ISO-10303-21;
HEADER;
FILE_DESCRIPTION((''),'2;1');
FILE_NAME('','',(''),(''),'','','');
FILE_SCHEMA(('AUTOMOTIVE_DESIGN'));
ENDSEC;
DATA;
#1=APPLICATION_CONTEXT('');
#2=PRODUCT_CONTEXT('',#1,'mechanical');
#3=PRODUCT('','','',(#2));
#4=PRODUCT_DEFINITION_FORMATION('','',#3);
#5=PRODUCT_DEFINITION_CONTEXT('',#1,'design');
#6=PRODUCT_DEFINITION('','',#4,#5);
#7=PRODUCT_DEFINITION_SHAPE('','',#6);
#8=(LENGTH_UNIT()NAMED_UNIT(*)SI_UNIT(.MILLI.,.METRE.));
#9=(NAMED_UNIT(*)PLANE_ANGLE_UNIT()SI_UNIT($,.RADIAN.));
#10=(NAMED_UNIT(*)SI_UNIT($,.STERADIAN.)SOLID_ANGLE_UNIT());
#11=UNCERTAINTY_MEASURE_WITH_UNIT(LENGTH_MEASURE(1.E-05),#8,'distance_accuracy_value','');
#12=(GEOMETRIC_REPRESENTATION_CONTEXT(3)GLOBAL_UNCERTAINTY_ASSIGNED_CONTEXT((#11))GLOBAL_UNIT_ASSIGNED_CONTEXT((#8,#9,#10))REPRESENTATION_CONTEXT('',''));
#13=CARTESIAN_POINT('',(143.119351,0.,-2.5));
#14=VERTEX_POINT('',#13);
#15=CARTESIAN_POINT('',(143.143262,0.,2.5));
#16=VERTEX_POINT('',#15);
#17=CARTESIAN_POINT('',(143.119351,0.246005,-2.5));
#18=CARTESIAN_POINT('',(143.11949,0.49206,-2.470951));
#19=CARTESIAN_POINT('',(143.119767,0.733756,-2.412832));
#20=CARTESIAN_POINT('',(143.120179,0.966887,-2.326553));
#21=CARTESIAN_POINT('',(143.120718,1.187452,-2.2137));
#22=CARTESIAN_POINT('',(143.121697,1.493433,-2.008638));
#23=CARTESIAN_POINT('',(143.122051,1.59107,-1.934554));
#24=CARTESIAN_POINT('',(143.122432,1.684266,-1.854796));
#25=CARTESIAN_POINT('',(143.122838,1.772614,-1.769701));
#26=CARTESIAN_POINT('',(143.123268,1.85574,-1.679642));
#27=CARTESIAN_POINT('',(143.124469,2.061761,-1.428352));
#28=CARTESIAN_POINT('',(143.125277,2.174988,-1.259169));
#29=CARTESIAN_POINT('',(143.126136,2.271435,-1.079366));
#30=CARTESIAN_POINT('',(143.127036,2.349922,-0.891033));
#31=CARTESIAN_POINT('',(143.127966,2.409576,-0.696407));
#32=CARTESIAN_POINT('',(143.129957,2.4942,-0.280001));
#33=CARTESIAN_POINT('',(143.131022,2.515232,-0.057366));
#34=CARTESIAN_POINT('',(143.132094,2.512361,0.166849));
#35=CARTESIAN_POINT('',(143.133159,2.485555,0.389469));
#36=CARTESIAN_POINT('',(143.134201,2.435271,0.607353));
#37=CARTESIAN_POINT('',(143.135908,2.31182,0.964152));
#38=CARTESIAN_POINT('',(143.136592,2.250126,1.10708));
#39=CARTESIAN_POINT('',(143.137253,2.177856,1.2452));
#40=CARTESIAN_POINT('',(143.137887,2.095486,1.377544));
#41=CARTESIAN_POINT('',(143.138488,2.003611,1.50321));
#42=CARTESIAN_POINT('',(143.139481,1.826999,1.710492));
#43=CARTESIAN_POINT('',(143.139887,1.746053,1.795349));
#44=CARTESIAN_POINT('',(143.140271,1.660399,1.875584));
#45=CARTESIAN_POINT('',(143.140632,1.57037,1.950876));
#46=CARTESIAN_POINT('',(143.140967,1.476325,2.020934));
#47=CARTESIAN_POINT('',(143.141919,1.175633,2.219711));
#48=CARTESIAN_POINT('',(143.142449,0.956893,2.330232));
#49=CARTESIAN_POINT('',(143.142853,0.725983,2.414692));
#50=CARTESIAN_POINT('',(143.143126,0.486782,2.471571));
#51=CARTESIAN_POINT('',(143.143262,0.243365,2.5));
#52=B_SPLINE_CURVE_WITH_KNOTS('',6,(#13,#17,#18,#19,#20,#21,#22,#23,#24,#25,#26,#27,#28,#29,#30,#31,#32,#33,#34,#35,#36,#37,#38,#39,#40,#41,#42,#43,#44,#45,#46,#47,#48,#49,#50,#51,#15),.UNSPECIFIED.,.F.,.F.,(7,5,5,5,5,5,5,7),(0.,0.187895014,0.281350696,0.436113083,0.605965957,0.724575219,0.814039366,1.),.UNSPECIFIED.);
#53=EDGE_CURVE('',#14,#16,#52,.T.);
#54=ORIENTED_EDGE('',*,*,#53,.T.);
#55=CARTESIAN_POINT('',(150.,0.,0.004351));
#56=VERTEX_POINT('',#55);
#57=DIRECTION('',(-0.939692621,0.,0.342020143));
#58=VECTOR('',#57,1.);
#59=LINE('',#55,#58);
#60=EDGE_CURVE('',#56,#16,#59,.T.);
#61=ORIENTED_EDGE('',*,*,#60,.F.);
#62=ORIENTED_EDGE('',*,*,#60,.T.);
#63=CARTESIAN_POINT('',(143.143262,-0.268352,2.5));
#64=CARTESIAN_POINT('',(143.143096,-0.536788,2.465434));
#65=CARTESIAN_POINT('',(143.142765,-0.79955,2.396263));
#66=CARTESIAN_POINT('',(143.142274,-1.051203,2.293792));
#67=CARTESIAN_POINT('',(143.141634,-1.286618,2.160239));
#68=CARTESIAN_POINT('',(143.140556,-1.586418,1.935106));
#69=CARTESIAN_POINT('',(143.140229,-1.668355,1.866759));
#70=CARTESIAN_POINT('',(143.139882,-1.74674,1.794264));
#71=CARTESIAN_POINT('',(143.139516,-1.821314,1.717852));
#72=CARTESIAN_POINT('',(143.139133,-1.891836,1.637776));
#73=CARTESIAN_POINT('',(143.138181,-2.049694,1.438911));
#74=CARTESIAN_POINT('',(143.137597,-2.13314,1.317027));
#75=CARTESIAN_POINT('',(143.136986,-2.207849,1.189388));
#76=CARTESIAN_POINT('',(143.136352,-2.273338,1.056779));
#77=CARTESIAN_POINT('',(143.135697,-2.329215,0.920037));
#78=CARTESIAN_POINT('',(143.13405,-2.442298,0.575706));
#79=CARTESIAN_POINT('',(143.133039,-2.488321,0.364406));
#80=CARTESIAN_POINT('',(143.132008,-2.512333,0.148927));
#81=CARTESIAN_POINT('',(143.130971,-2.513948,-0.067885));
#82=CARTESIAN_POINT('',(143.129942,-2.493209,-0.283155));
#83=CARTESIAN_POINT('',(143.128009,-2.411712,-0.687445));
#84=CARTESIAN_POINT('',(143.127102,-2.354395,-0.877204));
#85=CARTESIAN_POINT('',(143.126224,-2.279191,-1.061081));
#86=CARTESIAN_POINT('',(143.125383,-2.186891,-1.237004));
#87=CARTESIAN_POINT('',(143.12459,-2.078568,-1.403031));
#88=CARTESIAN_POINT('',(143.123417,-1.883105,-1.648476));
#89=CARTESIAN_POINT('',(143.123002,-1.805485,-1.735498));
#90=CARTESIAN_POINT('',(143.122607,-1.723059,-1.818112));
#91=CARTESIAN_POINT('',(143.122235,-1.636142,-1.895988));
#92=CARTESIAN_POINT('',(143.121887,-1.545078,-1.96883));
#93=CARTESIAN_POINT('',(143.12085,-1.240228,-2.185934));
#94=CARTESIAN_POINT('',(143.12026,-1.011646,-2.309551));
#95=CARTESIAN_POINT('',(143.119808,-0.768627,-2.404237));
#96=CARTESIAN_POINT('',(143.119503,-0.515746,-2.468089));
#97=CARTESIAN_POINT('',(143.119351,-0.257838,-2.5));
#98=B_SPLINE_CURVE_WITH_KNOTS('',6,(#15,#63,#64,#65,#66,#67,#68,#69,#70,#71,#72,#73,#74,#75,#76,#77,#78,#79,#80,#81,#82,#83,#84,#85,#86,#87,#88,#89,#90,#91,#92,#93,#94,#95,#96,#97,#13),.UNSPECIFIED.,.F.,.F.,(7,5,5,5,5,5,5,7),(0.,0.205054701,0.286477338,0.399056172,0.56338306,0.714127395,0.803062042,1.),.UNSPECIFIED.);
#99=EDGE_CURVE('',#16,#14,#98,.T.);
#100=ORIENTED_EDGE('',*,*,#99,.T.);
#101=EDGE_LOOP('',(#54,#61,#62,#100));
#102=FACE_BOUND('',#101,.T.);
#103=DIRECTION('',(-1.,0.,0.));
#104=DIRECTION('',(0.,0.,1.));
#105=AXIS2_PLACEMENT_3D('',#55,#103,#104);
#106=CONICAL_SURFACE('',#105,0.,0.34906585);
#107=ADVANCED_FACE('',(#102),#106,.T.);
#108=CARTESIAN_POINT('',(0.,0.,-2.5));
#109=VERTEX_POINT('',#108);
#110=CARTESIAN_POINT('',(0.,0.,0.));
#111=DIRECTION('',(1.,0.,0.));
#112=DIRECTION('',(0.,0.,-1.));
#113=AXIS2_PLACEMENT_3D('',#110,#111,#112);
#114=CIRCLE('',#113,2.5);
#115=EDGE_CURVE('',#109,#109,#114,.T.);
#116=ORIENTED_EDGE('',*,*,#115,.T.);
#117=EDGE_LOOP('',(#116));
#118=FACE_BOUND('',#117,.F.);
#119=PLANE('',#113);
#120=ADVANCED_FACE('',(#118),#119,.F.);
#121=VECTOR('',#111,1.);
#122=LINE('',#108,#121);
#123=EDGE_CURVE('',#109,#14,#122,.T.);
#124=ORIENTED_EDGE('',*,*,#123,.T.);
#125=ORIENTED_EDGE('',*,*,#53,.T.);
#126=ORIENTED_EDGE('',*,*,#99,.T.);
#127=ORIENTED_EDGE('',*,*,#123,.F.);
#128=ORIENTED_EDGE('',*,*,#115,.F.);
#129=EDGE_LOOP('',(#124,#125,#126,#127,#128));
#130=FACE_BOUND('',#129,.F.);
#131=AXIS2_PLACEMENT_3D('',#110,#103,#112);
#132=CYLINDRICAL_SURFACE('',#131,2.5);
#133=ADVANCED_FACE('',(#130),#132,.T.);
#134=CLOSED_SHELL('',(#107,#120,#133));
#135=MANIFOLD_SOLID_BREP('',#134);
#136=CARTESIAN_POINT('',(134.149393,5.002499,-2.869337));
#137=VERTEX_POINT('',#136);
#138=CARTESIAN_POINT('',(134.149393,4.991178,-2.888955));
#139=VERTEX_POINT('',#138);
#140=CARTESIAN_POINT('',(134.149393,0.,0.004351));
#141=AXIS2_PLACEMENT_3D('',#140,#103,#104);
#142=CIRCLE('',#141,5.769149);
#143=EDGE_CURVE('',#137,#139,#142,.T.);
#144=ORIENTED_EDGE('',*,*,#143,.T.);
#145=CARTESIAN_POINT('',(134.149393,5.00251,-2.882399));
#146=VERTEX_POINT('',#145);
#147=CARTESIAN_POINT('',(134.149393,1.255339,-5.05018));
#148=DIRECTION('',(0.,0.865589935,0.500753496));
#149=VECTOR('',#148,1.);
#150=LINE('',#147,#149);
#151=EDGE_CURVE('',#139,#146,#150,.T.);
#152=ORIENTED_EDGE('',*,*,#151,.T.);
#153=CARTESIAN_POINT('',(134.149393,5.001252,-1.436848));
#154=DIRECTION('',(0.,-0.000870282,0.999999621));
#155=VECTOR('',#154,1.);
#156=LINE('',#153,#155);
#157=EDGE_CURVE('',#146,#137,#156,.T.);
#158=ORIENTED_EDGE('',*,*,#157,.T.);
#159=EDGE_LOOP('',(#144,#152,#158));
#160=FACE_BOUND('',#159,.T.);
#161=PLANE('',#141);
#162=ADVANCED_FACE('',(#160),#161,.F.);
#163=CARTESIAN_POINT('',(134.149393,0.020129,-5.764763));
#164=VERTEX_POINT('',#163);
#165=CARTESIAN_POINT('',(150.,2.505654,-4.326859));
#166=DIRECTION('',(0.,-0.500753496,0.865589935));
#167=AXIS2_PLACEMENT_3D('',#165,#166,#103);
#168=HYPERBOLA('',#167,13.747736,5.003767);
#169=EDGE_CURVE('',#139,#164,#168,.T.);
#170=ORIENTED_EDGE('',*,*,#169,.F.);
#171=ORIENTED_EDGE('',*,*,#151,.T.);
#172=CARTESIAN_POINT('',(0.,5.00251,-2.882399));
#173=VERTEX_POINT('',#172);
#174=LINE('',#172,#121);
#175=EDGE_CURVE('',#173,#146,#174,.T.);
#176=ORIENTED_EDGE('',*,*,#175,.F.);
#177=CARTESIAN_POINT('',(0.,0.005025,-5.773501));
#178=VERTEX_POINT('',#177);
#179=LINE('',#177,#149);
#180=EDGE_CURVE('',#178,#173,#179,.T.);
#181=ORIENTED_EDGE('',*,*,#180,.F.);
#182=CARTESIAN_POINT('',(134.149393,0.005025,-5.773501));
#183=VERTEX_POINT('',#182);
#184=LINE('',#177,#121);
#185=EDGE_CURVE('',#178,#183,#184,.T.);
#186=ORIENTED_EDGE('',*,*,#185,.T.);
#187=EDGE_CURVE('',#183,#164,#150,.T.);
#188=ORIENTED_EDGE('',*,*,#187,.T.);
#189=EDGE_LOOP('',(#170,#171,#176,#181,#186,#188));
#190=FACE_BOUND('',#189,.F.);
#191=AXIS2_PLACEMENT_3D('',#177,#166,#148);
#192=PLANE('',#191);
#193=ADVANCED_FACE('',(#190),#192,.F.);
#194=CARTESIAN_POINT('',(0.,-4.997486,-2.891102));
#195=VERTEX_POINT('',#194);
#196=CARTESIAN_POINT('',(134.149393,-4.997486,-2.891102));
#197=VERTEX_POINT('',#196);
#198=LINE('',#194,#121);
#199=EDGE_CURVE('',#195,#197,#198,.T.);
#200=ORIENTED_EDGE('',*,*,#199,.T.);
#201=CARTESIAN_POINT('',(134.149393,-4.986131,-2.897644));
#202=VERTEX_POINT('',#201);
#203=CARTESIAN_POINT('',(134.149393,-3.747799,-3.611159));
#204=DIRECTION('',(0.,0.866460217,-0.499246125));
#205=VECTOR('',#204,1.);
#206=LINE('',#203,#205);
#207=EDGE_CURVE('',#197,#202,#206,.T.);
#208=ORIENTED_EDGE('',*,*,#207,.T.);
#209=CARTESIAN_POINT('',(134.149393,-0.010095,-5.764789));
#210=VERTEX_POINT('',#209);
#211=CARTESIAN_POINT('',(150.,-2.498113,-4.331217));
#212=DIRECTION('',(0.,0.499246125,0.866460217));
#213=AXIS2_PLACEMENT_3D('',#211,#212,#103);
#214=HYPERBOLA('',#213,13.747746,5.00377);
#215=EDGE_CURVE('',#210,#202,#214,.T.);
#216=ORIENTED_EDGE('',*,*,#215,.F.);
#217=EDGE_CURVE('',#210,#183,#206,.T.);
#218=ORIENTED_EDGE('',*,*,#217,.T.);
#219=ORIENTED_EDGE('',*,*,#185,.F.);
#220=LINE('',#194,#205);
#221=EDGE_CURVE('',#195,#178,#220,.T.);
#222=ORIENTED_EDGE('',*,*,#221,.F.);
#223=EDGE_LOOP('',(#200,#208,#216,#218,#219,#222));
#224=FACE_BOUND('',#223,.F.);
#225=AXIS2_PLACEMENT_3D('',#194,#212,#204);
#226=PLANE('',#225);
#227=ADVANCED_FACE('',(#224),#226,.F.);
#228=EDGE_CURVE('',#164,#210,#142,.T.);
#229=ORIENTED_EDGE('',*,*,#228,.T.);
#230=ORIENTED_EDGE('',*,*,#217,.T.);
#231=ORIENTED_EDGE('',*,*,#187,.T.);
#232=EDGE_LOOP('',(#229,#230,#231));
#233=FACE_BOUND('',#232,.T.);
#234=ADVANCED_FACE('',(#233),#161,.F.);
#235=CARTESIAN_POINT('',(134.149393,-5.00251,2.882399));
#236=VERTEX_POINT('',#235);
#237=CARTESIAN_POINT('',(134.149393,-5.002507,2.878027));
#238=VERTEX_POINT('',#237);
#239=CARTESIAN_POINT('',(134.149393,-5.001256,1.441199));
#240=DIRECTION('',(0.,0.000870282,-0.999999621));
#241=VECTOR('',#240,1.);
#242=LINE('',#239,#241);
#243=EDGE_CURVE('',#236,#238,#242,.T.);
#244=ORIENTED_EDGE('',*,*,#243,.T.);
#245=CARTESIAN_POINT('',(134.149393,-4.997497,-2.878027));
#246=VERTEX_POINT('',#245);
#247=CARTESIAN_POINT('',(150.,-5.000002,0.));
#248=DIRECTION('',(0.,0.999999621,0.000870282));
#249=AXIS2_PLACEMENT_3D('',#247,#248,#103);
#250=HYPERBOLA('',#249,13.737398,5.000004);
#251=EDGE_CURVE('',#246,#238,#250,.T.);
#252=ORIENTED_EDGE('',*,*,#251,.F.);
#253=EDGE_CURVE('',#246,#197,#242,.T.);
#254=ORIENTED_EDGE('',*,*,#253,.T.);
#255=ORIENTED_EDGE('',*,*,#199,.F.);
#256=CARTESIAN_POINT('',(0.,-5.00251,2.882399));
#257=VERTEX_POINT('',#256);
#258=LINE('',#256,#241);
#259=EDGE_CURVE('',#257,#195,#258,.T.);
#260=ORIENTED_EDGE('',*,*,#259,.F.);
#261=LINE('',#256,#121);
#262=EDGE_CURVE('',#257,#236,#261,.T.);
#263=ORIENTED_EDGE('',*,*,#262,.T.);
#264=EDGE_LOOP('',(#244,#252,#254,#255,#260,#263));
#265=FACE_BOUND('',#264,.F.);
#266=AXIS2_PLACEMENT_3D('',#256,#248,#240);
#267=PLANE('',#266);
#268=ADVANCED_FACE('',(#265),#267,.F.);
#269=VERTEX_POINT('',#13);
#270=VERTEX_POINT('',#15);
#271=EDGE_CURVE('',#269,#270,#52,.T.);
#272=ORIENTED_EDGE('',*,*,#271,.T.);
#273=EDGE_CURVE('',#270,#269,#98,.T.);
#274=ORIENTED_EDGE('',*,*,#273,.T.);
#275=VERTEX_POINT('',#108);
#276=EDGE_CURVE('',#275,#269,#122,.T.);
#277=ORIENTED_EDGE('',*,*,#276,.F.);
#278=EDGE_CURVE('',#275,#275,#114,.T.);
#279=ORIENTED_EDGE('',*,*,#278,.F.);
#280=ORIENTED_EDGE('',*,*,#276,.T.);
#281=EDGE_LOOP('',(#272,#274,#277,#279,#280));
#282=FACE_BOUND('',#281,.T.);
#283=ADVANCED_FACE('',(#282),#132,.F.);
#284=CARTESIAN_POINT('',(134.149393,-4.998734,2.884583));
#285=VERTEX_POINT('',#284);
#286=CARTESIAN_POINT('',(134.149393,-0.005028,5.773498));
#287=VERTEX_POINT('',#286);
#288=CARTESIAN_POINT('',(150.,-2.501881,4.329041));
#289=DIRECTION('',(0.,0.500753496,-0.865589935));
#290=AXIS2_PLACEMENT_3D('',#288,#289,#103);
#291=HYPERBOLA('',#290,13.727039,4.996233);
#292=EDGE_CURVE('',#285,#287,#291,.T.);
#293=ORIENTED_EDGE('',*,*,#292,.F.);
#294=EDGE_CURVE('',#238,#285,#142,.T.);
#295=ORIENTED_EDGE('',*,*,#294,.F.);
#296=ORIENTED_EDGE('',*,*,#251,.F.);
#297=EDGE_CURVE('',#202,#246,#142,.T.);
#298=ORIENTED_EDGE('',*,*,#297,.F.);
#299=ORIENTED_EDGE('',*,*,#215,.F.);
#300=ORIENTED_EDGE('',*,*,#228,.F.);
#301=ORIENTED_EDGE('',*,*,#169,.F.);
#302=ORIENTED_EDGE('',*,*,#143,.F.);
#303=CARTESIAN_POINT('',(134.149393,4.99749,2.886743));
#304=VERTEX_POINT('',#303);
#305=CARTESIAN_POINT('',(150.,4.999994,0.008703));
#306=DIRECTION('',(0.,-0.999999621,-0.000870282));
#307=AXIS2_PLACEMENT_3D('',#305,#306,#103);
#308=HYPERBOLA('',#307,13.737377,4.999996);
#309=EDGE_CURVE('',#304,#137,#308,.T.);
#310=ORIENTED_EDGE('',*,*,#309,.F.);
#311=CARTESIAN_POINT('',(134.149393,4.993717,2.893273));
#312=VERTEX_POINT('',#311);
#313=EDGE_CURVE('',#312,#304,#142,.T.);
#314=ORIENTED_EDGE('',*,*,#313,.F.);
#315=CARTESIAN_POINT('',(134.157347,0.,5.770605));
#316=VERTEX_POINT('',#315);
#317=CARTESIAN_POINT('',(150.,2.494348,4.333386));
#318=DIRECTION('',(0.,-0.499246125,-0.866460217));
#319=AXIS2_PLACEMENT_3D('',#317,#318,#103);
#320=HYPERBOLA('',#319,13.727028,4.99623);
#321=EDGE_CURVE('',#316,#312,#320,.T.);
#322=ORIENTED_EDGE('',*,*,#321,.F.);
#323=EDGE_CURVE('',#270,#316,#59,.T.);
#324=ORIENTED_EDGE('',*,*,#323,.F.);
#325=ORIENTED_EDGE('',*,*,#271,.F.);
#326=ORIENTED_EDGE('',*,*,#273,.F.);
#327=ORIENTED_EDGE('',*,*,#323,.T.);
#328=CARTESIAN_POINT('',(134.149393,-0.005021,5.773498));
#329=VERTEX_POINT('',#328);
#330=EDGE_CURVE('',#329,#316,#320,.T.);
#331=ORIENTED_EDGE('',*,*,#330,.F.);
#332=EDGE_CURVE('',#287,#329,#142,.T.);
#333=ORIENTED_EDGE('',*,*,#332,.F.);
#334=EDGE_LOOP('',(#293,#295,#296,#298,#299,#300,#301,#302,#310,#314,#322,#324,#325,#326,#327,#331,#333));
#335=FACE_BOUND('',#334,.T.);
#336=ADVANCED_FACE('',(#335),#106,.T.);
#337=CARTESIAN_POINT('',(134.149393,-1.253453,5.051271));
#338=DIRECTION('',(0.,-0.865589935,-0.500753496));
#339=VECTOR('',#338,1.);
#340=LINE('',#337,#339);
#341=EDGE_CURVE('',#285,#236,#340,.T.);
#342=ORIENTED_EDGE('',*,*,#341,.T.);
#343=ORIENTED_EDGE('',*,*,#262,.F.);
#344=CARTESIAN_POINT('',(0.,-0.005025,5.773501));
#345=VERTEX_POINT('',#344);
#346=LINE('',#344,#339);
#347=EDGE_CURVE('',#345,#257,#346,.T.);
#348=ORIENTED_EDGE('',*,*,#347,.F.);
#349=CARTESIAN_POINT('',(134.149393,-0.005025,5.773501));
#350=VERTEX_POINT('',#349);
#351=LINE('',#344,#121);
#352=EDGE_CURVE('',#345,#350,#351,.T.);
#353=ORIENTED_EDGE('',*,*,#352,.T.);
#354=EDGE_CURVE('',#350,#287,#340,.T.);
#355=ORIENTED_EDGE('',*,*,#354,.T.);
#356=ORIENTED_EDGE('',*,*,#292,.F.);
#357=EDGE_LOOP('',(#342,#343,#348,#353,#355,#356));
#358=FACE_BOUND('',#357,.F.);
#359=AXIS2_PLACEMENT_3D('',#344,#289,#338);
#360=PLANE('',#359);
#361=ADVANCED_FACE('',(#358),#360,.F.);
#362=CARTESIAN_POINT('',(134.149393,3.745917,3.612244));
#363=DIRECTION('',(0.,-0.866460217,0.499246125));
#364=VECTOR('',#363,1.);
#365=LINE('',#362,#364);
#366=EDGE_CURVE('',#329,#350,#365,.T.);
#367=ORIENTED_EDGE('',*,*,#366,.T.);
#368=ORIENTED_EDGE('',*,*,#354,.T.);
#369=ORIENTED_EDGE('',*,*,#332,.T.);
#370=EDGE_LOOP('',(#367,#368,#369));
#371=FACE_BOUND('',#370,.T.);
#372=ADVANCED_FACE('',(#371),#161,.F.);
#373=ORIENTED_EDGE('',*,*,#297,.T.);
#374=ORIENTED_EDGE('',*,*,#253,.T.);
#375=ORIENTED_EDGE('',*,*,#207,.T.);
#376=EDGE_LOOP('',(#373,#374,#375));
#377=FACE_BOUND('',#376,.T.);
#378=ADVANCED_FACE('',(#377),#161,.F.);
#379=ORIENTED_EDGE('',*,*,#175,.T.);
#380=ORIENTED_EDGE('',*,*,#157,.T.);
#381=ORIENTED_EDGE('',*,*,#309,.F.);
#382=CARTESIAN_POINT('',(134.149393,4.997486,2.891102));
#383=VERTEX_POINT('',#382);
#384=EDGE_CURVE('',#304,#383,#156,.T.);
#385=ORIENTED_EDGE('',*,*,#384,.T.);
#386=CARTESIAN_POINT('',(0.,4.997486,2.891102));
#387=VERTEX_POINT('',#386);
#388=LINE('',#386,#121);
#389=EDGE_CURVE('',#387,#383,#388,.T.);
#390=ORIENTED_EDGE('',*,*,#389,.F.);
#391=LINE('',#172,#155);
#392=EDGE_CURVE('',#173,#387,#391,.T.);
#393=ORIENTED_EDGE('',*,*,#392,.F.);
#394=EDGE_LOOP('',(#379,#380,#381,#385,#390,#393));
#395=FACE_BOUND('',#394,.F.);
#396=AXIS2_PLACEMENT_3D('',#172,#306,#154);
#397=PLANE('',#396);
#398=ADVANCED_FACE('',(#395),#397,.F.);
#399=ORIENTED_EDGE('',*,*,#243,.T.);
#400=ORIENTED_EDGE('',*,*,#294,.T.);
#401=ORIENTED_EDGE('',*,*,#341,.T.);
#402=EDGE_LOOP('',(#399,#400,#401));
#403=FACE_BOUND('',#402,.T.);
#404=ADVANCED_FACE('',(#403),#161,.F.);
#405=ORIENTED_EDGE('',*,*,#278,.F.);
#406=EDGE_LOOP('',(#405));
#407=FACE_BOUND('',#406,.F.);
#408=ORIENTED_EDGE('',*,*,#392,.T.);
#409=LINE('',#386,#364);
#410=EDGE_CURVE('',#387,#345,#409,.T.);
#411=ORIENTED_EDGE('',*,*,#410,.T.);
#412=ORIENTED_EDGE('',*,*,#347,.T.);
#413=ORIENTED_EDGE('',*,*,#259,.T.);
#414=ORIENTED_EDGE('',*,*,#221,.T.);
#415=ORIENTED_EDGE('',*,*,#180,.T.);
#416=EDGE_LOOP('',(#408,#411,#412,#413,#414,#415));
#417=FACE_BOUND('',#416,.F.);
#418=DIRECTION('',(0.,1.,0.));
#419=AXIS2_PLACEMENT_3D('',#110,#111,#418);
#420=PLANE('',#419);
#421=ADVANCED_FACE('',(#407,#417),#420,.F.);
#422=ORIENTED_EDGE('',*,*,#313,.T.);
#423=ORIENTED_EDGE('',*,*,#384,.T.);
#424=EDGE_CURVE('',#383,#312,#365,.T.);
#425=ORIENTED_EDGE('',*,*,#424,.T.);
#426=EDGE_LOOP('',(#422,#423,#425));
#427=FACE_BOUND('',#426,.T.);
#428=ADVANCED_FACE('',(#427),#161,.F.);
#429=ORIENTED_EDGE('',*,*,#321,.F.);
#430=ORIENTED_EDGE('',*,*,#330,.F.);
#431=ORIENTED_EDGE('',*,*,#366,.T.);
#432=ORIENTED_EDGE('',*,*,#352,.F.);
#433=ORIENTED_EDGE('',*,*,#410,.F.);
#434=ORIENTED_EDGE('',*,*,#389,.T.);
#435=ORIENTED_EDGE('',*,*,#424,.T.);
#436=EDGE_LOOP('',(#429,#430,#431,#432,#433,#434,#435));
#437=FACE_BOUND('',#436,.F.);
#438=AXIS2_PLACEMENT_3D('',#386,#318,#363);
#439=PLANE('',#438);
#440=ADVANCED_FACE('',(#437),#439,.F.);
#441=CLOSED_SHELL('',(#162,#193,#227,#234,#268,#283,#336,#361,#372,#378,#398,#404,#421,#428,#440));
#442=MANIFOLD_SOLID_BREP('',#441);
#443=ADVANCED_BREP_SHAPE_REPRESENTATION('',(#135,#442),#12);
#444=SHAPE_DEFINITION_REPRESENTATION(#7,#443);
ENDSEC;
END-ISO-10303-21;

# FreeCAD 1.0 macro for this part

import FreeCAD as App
import Part
import Sketcher
Q = App.Units.Quantity


def add_polygon(sketch, points):
    """Adds a closed chain of lines whose ends are joined by coincident constraints."""
    first, n = sketch.GeometryCount, len(points)
    for a, b in zip(points, points[1:] + points[:1]):
        sketch.addGeometry(Part.LineSegment(App.Vector(*a, 0), App.Vector(*b, 0)), False)
    for i in range(n):
        sketch.addConstraint(Sketcher.Constraint("Coincident", first + i, 2, first + (i + 1) % n, 1))

doc = App.newDocument("Part")
body = doc.addObject("PartDesign::Body", "Body")

# Sketch on YZ plane
sketch1 = body.newObject("Sketcher::SketchObject", "Sketch")
sketch1.AttachmentSupport = (doc.getObject("YZ_Plane"), [""])
sketch1.MapMode = "FlatFace"
add_polygon(sketch1, [(5, -2.9), (5, 2.9), (0, 5.8), (-5, 2.9), (-5, -2.9), (0, -5.8)])  # lines 0-5
sketch1.addGeometry(Part.Circle(App.Vector(0, 0, 0), App.Vector(0, 0, 1), 2.5), False)  # 6
sketch1.addConstraint([
    Sketcher.Constraint("Coincident", 6, 3, -1, 1),
    Sketcher.Constraint("Symmetric", 0, 2, 3, 2, -1, 1),
    Sketcher.Constraint("Symmetric", 1, 2, 4, 2, -1, 1),
    Sketcher.Constraint("Symmetric", 2, 2, 5, 2, -1, 1),
    Sketcher.Constraint("Equal", 0, 1),
    Sketcher.Constraint("Equal", 1, 2),
    Sketcher.Constraint("Diameter", 6, 5.0),
    Sketcher.Constraint("DistanceY", 4, 2, 1, 2, 11.547001),
    Sketcher.Constraint("DistanceY", -1, 1, 0, 2, 2.891102),
    Sketcher.Constraint("DistanceY", -1, 1, 2, 2, 2.882399),
    Sketcher.Constraint("DistanceX", 2, 2, -1, 1, 5.00251),
])
pad1 = body.newObject("PartDesign::Pad", "Pad")
pad1.Profile = sketch1
pad1.Length = 150
body2 = doc.addObject("PartDesign::Body", "Body001")

# Sketch on YZ plane
sketch2 = body2.newObject("Sketcher::SketchObject", "Sketch001")
sketch2.AttachmentSupport = (doc.getObject("YZ_Plane001"), [""])
sketch2.MapMode = "FlatFace"
sketch2.addGeometry(Part.Circle(App.Vector(0, 0, 0), App.Vector(0, 0, 1), 2.5), False)
sketch2.addConstraint([
    Sketcher.Constraint("Coincident", 0, 3, -1, 1),
    Sketcher.Constraint("Diameter", 0, 5.0),
])
pad2 = body2.newObject("PartDesign::Pad", "Pad001")
pad2.Profile = sketch2
pad2.Length = 150
body3 = doc.addObject("PartDesign::Body", "Body002")

# Sketch on XZ plane
sketch3 = body3.newObject("Sketcher::SketchObject", "Sketch002")
sketch3.AttachmentSupport = (doc.getObject("XZ_Plane002"), [""])
sketch3.MapMode = "FlatFace"
add_polygon(sketch3, [(150, 0), (134, 6), (134, 16), (160, 16), (160, 0)])  # lines 0-4
sketch3.addGeometry(Part.LineSegment(App.Vector(160, 0, 0), App.Vector(134, 0, 0)), True)  # axis
sketch3.addConstraint([
    Sketcher.Constraint("Vertical", 1),
    Sketcher.Constraint("Horizontal", 2),
    Sketcher.Constraint("Vertical", 3),
    Sketcher.Constraint("Horizontal", 4),
    Sketcher.Constraint("Horizontal", 5),
    Sketcher.Constraint("Coincident", 5, 1, 3, 2),
    Sketcher.Constraint("Vertical", 1, 2, 5, 2),
    Sketcher.Constraint("Equal", 4, 1),
    Sketcher.Constraint("DistanceX", 4, 2, 4, 1, 10.0),
    Sketcher.Constraint("Angle", 0, Q("160 deg")),
    Sketcher.Constraint("DistanceX", -1, 1, 2, 2, 160.0),
    Sketcher.Constraint("DistanceY", 3, 2, 3, 1, 15.769149),
    Sketcher.Constraint("DistanceY", -1, 1, 0, 2, 5.773501),
])
revolution = body3.newObject("PartDesign::Revolution", "Revolution")
revolution.Profile = sketch3
revolution.ReferenceAxis = (sketch3, ["Axis0"])
revolution.Angle = 360
doc.recompute()

body4 = doc.addObject("PartDesign::Body", "Body003")
body4.BaseFeature = body3
boolean = body.newObject("PartDesign::Boolean", "Boolean")
boolean.Type = "Cut"
boolean.addObjects([body4])
doc.recompute()

boolean2 = body2.newObject("PartDesign::Boolean", "Boolean001")
boolean2.Type = "Cut"
boolean2.addObjects([body3])

doc.recompute()
